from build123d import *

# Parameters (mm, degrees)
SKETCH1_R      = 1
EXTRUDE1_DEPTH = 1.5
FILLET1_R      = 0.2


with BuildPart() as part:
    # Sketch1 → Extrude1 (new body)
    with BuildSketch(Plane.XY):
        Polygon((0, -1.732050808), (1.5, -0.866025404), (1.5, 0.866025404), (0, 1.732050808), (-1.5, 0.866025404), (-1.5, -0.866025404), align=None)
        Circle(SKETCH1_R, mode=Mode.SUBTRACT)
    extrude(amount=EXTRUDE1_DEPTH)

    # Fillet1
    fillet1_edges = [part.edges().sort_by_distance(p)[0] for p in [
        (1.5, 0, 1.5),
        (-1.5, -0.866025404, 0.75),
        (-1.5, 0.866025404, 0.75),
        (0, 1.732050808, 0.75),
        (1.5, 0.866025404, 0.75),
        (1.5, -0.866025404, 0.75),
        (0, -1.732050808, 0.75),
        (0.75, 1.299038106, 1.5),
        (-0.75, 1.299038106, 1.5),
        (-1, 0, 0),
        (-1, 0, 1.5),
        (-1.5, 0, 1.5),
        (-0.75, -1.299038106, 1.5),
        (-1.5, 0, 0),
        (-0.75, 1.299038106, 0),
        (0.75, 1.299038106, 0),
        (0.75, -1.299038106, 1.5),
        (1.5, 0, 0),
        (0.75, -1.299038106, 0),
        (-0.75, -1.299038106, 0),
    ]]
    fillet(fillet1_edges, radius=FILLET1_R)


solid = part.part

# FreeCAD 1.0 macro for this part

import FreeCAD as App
import Part
import Sketcher
from FreeCAD import Vector
Q = App.Units.Quantity


def add_polygon(sketch, points):
    """Adds a closed chain of lines whose ends are joined by coincident constraints."""
    first, n = sketch.GeometryCount, len(points)
    for a, b in zip(points, points[1:] + points[:1]):
        sketch.addGeometry(Part.LineSegment(App.Vector(*a, 0), App.Vector(*b, 0)), False)
    for i in range(n):
        sketch.addConstraint(Sketcher.Constraint("Coincident", first + i, 2, first + (i + 1) % n, 1))

doc = App.newDocument("Part")
body = doc.addObject("PartDesign::Body", "Body")

# Sketch on XY plane
sketch1 = body.newObject("Sketcher::SketchObject", "Sketch")
sketch1.AttachmentSupport = (doc.getObject("XY_Plane"), [""])
sketch1.MapMode = "FlatFace"
add_polygon(sketch1, [(0, -1.732051), (1.5, -0.866025), (1.5, 0.866025), (0, 1.732051), (-1.5, 0.866025), (-1.5, -0.866025)])  # lines 0-5
sketch1.addGeometry(Part.Circle(Vector(0, 0, 0), Vector(0, 0, 1), 1), False)  # 6
sketch1.addConstraint([
    Sketcher.Constraint("Vertical", 1),
    Sketcher.Constraint("Vertical", 4),
    Sketcher.Constraint("Coincident", 6, 3, -1, 1),
    Sketcher.Constraint("Symmetric", 0, 2, 3, 2, -1, 1),
    Sketcher.Constraint("Symmetric", 2, 2, 5, 2, -1, 1),
    Sketcher.Constraint("PointOnObject", 2, 2, -2),
    Sketcher.Constraint("Parallel", 2, 5),
    Sketcher.Constraint("Horizontal", 1, 2, 3, 2),
    Sketcher.Constraint("Diameter", 6, Q("2 mm")),
    Sketcher.Constraint("Angle", 0, Q("30 deg")),
    Sketcher.Constraint("DistanceX", 3, 2, 1, 2, Q("3 mm")),
    Sketcher.Constraint("DistanceY", 1, 1, 1, 2, Q("1.732051 mm")),
])
pad1 = body.newObject("PartDesign::Pad", "Pad")
pad1.Profile = sketch1
pad1.Length = 1.5
doc.recompute()

fillet = body.newObject("PartDesign::Fillet", "Fillet")
fillet.Base = (pad1, ["Edge1"])
fillet.UseAllEdges = True
fillet.Radius = 0.2

doc.recompute()
